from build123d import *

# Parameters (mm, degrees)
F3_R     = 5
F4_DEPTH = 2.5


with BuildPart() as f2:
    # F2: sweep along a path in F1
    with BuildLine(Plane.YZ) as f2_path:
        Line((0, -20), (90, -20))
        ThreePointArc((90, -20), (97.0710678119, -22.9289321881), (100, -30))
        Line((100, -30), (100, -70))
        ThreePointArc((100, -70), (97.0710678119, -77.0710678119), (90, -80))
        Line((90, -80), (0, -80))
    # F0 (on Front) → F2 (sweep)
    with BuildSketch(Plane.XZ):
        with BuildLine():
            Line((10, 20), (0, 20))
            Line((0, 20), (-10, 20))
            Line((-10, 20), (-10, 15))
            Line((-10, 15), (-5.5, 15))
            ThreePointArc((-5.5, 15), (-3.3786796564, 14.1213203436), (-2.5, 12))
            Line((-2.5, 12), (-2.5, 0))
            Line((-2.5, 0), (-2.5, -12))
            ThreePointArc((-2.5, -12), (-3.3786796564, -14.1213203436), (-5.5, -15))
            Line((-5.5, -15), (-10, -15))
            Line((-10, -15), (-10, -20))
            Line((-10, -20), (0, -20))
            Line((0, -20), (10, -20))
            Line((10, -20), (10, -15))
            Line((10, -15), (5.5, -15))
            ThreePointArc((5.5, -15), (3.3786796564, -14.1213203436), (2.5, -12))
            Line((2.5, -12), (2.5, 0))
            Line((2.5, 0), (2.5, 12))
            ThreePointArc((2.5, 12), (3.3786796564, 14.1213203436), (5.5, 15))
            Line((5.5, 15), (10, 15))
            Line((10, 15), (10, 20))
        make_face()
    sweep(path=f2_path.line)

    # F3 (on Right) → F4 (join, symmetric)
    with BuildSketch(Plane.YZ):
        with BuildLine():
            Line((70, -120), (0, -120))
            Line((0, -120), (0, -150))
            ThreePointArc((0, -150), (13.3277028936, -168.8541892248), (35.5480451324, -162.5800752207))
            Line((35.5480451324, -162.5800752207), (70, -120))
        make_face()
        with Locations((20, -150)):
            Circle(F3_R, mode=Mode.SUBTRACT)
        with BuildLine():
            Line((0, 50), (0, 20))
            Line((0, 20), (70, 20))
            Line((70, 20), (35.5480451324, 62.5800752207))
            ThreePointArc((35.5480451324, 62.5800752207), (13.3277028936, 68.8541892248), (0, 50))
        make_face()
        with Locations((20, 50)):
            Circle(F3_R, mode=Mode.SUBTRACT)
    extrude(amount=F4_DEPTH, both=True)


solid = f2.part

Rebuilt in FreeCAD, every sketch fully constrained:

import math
import FreeCAD as App
import Part
import Sketcher

V = App.Vector
Q = App.Units.Quantity

doc = App.newDocument("Part")
body = doc.addObject("PartDesign::Body", "Body")

# Sketch on XZ plane
sketch1 = body.newObject("Sketcher::SketchObject", "Sketch")
sketch1.AttachmentSupport = (doc.getObject("XZ_Plane"), [""])
sketch1.MapMode = "FlatFace"
sketch1.addGeometry(Part.LineSegment(V(10, 20, 0), V(-10, 20, 0)), False)
sketch1.addGeometry(Part.LineSegment(V(-10, 20, 0), V(-10, 15, 0)), False)
sketch1.addGeometry(Part.LineSegment(V(-10, 15, 0), V(-5.5, 15, 0)), False)
sketch1.addGeometry(Part.ArcOfCircle(Part.Circle(V(-5.5, 12, 0), V(0, 0, 1), 3), math.radians(0), math.radians(90)), False)
sketch1.addGeometry(Part.LineSegment(V(-2.5, 12, 0), V(-2.5, -12, 0)), False)
sketch1.addGeometry(Part.ArcOfCircle(Part.Circle(V(-5.5, -12, 0), V(0, 0, 1), 3), math.radians(-90), math.radians(0)), False)
sketch1.addGeometry(Part.LineSegment(V(-5.5, -15, 0), V(-10, -15, 0)), False)
sketch1.addGeometry(Part.LineSegment(V(-10, -15, 0), V(-10, -20, 0)), False)
sketch1.addGeometry(Part.LineSegment(V(-10, -20, 0), V(10, -20, 0)), False)
sketch1.addGeometry(Part.LineSegment(V(10, -20, 0), V(10, -15, 0)), False)
sketch1.addGeometry(Part.LineSegment(V(10, -15, 0), V(5.5, -15, 0)), False)
sketch1.addGeometry(Part.ArcOfCircle(Part.Circle(V(5.5, -12, 0), V(0, 0, 1), 3), math.radians(180), math.radians(270)), False)
sketch1.addGeometry(Part.LineSegment(V(2.5, -12, 0), V(2.5, 12, 0)), False)
sketch1.addGeometry(Part.ArcOfCircle(Part.Circle(V(5.5, 12, 0), V(0, 0, 1), 3), math.radians(90), math.radians(180)), False)
sketch1.addGeometry(Part.LineSegment(V(5.5, 15, 0), V(10, 15, 0)), False)
sketch1.addGeometry(Part.LineSegment(V(10, 15, 0), V(10, 20, 0)), False)
sketch1.addConstraint(Sketcher.Constraint("Coincident", 0, 2, 1, 1))
sketch1.addConstraint(Sketcher.Constraint("Coincident", 1, 2, 2, 1))
sketch1.addConstraint(Sketcher.Constraint("Tangent", 2, 2, 3, 2))
sketch1.addConstraint(Sketcher.Constraint("Tangent", 3, 1, 4, 1))
sketch1.addConstraint(Sketcher.Constraint("Tangent", 4, 2, 5, 2))
sketch1.addConstraint(Sketcher.Constraint("Tangent", 5, 1, 6, 1))
sketch1.addConstraint(Sketcher.Constraint("Coincident", 6, 2, 7, 1))
sketch1.addConstraint(Sketcher.Constraint("Coincident", 7, 2, 8, 1))
sketch1.addConstraint(Sketcher.Constraint("Coincident", 8, 2, 9, 1))
sketch1.addConstraint(Sketcher.Constraint("Coincident", 9, 2, 10, 1))
sketch1.addConstraint(Sketcher.Constraint("Tangent", 10, 2, 11, 2))
sketch1.addConstraint(Sketcher.Constraint("Tangent", 11, 1, 12, 1))
sketch1.addConstraint(Sketcher.Constraint("Tangent", 12, 2, 13, 2))
sketch1.addConstraint(Sketcher.Constraint("Tangent", 13, 1, 14, 1))
sketch1.addConstraint(Sketcher.Constraint("Coincident", 14, 2, 15, 1))
sketch1.addConstraint(Sketcher.Constraint("Coincident", 15, 2, 0, 1))
sketch1.addConstraint(Sketcher.Constraint("Horizontal", 0))
sketch1.addConstraint(Sketcher.Constraint("Vertical", 1))
sketch1.addConstraint(Sketcher.Constraint("Horizontal", 2))
sketch1.addConstraint(Sketcher.Constraint("Vertical", 4))
sketch1.addConstraint(Sketcher.Constraint("Horizontal", 6))
sketch1.addConstraint(Sketcher.Constraint("Vertical", 7))
sketch1.addConstraint(Sketcher.Constraint("Horizontal", 8))
sketch1.addConstraint(Sketcher.Constraint("Vertical", 9))
sketch1.addConstraint(Sketcher.Constraint("Horizontal", 10))
sketch1.addConstraint(Sketcher.Constraint("Vertical", 12))
sketch1.addConstraint(Sketcher.Constraint("Horizontal", 14))
sketch1.addConstraint(Sketcher.Constraint("Vertical", 15))
sketch1.addConstraint(Sketcher.Constraint("Equal", 3, 5))
sketch1.addConstraint(Sketcher.Constraint("Equal", 5, 11))
sketch1.addConstraint(Sketcher.Constraint("Equal", 11, 13))
sketch1.addConstraint(Sketcher.Constraint("Symmetric", 3, 3, 11, 3, -1, 1))
sketch1.addConstraint(Sketcher.Constraint("Symmetric", 0, 2, 8, 2, -1, 1))
sketch1.addConstraint(Sketcher.Constraint("Symmetric", 6, 2, 14, 2, -1, 1))
sketch1.addConstraint(Sketcher.Constraint("Symmetric", 6, 2, 9, 2, -2))
sketch1.addConstraint(Sketcher.Constraint("Radius", 3, Q("3 mm")))
sketch1.addConstraint(Sketcher.Constraint("DistanceX", 0, 2, 0, 1, Q("20 mm")))
sketch1.addConstraint(Sketcher.Constraint("DistanceY", 1, 2, 1, 1, Q("5 mm")))
sketch1.addConstraint(Sketcher.Constraint("DistanceY", 4, 2, 4, 1, Q("24 mm")))
sketch1.addConstraint(Sketcher.Constraint("DistanceX", 2, 1, 2, 2, Q("4.5 mm")))

# Sketch on YZ plane
sketch2 = body.newObject("Sketcher::SketchObject", "Sketch001")
sketch2.AttachmentSupport = (doc.getObject("YZ_Plane"), [""])
sketch2.MapMode = "FlatFace"
sketch2.addGeometry(Part.LineSegment(V(0, -20, 0), V(90, -20, 0)), False)
sketch2.addGeometry(Part.ArcOfCircle(Part.Circle(V(90, -30, 0), V(0, 0, 1), 10), math.radians(0), math.radians(90)), False)
sketch2.addGeometry(Part.LineSegment(V(100, -30, 0), V(100, -70, 0)), False)
sketch2.addGeometry(Part.ArcOfCircle(Part.Circle(V(90, -70, 0), V(0, 0, 1), 10), math.radians(-90), math.radians(0)), False)
sketch2.addGeometry(Part.LineSegment(V(90, -80, 0), V(0, -80, 0)), False)
sketch2.addConstraint(Sketcher.Constraint("Tangent", 0, 2, 1, 2))
sketch2.addConstraint(Sketcher.Constraint("Tangent", 1, 1, 2, 1))
sketch2.addConstraint(Sketcher.Constraint("Tangent", 2, 2, 3, 2))
sketch2.addConstraint(Sketcher.Constraint("Tangent", 3, 1, 4, 1))
sketch2.addConstraint(Sketcher.Constraint("Horizontal", 0))
sketch2.addConstraint(Sketcher.Constraint("Vertical", 2))
sketch2.addConstraint(Sketcher.Constraint("Horizontal", 4))
sketch2.addConstraint(Sketcher.Constraint("Equal", 1, 3))
sketch2.addConstraint(Sketcher.Constraint("PointOnObject", 0, 1, -2))
sketch2.addConstraint(Sketcher.Constraint("PointOnObject", 4, 2, -2))
sketch2.addConstraint(Sketcher.Constraint("Radius", 1, Q("10 mm")))
sketch2.addConstraint(Sketcher.Constraint("DistanceX", 0, 1, 0, 2, Q("90 mm")))
sketch2.addConstraint(Sketcher.Constraint("DistanceY", 2, 2, 2, 1, Q("40 mm")))
sketch2.addConstraint(Sketcher.Constraint("DistanceY", 1, 3, -1, 1, Q("30 mm")))
doc.recompute()

additivepipe = body.newObject("PartDesign::AdditivePipe", "AdditivePipe")
additivepipe.Profile = sketch1
additivepipe.Spine = (sketch2, ["Edge1", "Edge2", "Edge3", "Edge4", "Edge5"])

# Sketch on YZ plane
sketch3 = body.newObject("Sketcher::SketchObject", "Sketch002")
sketch3.AttachmentSupport = (doc.getObject("YZ_Plane"), [""])
sketch3.MapMode = "FlatFace"
sketch3.addGeometry(Part.LineSegment(V(70, -120, 0), V(0, -120, 0)), False)
sketch3.addGeometry(Part.LineSegment(V(0, -120, 0), V(0, -150, 0)), False)
sketch3.addGeometry(Part.ArcOfCircle(Part.Circle(V(20, -150, 0), V(0, 0, 1), 20), math.radians(180), math.radians(321)), False)
sketch3.addGeometry(Part.LineSegment(V(36, -163, 0), V(70, -120, 0)), False)
sketch3.addGeometry(Part.Circle(V(20, -150, 0), V(0, 0, 1), 5), False)
sketch3.addGeometry(Part.LineSegment(V(0, 50, 0), V(0, 20, 0)), False)
sketch3.addGeometry(Part.LineSegment(V(0, 20, 0), V(70, 20, 0)), False)
sketch3.addGeometry(Part.LineSegment(V(70, 20, 0), V(36, 63, 0)), False)
sketch3.addGeometry(Part.ArcOfCircle(Part.Circle(V(20, 50, 0), V(0, 0, 1), 20), math.radians(39), math.radians(180)), False)
sketch3.addGeometry(Part.Circle(V(20, 50, 0), V(0, 0, 1), 5), False)
sketch3.addConstraint(Sketcher.Constraint("Coincident", 0, 2, 1, 1))
sketch3.addConstraint(Sketcher.Constraint("Tangent", 1, 2, 2, 1))
sketch3.addConstraint(Sketcher.Constraint("Tangent", 2, 2, 3, 1))
sketch3.addConstraint(Sketcher.Constraint("Coincident", 3, 2, 0, 1))
sketch3.addConstraint(Sketcher.Constraint("Coincident", 5, 2, 6, 1))
sketch3.addConstraint(Sketcher.Constraint("Coincident", 6, 2, 7, 1))
sketch3.addConstraint(Sketcher.Constraint("Tangent", 7, 2, 8, 1))
sketch3.addConstraint(Sketcher.Constraint("Tangent", 8, 2, 5, 1))
sketch3.addConstraint(Sketcher.Constraint("Horizontal", 0))
sketch3.addConstraint(Sketcher.Constraint("Vertical", 1))
sketch3.addConstraint(Sketcher.Constraint("Vertical", 5))
sketch3.addConstraint(Sketcher.Constraint("Horizontal", 6))
sketch3.addConstraint(Sketcher.Constraint("Coincident", 4, 3, 2, 3))
sketch3.addConstraint(Sketcher.Constraint("Coincident", 9, 3, 8, 3))
sketch3.addConstraint(Sketcher.Constraint("Equal", 2, 8))
sketch3.addConstraint(Sketcher.Constraint("Equal", 4, 9))
sketch3.addConstraint(Sketcher.Constraint("PointOnObject", 0, 2, -2))
sketch3.addConstraint(Sketcher.Constraint("PointOnObject", 5, 2, -2))
sketch3.addConstraint(Sketcher.Constraint("Vertical", 3, 2, 6, 2))
sketch3.addConstraint(Sketcher.Constraint("Vertical", 2, 2, 7, 2))
sketch3.addConstraint(Sketcher.Constraint("Diameter", 4, Q("10 mm")))
sketch3.addConstraint(Sketcher.Constraint("Radius", 2, Q("20 mm")))
sketch3.addConstraint(Sketcher.Constraint("DistanceX", 0, 2, 0, 1, Q("70 mm")))
sketch3.addConstraint(Sketcher.Constraint("DistanceY", 1, 2, 1, 1, Q("30 mm")))
sketch3.addConstraint(Sketcher.Constraint("DistanceY", 2, 3, -1, 1, Q("150 mm")))
sketch3.addConstraint(Sketcher.Constraint("DistanceY", -1, 1, 8, 3, Q("50 mm")))
pad1 = body.newObject("PartDesign::Pad", "Pad")
pad1.Profile = sketch3
pad1.Length = 5
pad1.Midplane = True

doc.recompute()
